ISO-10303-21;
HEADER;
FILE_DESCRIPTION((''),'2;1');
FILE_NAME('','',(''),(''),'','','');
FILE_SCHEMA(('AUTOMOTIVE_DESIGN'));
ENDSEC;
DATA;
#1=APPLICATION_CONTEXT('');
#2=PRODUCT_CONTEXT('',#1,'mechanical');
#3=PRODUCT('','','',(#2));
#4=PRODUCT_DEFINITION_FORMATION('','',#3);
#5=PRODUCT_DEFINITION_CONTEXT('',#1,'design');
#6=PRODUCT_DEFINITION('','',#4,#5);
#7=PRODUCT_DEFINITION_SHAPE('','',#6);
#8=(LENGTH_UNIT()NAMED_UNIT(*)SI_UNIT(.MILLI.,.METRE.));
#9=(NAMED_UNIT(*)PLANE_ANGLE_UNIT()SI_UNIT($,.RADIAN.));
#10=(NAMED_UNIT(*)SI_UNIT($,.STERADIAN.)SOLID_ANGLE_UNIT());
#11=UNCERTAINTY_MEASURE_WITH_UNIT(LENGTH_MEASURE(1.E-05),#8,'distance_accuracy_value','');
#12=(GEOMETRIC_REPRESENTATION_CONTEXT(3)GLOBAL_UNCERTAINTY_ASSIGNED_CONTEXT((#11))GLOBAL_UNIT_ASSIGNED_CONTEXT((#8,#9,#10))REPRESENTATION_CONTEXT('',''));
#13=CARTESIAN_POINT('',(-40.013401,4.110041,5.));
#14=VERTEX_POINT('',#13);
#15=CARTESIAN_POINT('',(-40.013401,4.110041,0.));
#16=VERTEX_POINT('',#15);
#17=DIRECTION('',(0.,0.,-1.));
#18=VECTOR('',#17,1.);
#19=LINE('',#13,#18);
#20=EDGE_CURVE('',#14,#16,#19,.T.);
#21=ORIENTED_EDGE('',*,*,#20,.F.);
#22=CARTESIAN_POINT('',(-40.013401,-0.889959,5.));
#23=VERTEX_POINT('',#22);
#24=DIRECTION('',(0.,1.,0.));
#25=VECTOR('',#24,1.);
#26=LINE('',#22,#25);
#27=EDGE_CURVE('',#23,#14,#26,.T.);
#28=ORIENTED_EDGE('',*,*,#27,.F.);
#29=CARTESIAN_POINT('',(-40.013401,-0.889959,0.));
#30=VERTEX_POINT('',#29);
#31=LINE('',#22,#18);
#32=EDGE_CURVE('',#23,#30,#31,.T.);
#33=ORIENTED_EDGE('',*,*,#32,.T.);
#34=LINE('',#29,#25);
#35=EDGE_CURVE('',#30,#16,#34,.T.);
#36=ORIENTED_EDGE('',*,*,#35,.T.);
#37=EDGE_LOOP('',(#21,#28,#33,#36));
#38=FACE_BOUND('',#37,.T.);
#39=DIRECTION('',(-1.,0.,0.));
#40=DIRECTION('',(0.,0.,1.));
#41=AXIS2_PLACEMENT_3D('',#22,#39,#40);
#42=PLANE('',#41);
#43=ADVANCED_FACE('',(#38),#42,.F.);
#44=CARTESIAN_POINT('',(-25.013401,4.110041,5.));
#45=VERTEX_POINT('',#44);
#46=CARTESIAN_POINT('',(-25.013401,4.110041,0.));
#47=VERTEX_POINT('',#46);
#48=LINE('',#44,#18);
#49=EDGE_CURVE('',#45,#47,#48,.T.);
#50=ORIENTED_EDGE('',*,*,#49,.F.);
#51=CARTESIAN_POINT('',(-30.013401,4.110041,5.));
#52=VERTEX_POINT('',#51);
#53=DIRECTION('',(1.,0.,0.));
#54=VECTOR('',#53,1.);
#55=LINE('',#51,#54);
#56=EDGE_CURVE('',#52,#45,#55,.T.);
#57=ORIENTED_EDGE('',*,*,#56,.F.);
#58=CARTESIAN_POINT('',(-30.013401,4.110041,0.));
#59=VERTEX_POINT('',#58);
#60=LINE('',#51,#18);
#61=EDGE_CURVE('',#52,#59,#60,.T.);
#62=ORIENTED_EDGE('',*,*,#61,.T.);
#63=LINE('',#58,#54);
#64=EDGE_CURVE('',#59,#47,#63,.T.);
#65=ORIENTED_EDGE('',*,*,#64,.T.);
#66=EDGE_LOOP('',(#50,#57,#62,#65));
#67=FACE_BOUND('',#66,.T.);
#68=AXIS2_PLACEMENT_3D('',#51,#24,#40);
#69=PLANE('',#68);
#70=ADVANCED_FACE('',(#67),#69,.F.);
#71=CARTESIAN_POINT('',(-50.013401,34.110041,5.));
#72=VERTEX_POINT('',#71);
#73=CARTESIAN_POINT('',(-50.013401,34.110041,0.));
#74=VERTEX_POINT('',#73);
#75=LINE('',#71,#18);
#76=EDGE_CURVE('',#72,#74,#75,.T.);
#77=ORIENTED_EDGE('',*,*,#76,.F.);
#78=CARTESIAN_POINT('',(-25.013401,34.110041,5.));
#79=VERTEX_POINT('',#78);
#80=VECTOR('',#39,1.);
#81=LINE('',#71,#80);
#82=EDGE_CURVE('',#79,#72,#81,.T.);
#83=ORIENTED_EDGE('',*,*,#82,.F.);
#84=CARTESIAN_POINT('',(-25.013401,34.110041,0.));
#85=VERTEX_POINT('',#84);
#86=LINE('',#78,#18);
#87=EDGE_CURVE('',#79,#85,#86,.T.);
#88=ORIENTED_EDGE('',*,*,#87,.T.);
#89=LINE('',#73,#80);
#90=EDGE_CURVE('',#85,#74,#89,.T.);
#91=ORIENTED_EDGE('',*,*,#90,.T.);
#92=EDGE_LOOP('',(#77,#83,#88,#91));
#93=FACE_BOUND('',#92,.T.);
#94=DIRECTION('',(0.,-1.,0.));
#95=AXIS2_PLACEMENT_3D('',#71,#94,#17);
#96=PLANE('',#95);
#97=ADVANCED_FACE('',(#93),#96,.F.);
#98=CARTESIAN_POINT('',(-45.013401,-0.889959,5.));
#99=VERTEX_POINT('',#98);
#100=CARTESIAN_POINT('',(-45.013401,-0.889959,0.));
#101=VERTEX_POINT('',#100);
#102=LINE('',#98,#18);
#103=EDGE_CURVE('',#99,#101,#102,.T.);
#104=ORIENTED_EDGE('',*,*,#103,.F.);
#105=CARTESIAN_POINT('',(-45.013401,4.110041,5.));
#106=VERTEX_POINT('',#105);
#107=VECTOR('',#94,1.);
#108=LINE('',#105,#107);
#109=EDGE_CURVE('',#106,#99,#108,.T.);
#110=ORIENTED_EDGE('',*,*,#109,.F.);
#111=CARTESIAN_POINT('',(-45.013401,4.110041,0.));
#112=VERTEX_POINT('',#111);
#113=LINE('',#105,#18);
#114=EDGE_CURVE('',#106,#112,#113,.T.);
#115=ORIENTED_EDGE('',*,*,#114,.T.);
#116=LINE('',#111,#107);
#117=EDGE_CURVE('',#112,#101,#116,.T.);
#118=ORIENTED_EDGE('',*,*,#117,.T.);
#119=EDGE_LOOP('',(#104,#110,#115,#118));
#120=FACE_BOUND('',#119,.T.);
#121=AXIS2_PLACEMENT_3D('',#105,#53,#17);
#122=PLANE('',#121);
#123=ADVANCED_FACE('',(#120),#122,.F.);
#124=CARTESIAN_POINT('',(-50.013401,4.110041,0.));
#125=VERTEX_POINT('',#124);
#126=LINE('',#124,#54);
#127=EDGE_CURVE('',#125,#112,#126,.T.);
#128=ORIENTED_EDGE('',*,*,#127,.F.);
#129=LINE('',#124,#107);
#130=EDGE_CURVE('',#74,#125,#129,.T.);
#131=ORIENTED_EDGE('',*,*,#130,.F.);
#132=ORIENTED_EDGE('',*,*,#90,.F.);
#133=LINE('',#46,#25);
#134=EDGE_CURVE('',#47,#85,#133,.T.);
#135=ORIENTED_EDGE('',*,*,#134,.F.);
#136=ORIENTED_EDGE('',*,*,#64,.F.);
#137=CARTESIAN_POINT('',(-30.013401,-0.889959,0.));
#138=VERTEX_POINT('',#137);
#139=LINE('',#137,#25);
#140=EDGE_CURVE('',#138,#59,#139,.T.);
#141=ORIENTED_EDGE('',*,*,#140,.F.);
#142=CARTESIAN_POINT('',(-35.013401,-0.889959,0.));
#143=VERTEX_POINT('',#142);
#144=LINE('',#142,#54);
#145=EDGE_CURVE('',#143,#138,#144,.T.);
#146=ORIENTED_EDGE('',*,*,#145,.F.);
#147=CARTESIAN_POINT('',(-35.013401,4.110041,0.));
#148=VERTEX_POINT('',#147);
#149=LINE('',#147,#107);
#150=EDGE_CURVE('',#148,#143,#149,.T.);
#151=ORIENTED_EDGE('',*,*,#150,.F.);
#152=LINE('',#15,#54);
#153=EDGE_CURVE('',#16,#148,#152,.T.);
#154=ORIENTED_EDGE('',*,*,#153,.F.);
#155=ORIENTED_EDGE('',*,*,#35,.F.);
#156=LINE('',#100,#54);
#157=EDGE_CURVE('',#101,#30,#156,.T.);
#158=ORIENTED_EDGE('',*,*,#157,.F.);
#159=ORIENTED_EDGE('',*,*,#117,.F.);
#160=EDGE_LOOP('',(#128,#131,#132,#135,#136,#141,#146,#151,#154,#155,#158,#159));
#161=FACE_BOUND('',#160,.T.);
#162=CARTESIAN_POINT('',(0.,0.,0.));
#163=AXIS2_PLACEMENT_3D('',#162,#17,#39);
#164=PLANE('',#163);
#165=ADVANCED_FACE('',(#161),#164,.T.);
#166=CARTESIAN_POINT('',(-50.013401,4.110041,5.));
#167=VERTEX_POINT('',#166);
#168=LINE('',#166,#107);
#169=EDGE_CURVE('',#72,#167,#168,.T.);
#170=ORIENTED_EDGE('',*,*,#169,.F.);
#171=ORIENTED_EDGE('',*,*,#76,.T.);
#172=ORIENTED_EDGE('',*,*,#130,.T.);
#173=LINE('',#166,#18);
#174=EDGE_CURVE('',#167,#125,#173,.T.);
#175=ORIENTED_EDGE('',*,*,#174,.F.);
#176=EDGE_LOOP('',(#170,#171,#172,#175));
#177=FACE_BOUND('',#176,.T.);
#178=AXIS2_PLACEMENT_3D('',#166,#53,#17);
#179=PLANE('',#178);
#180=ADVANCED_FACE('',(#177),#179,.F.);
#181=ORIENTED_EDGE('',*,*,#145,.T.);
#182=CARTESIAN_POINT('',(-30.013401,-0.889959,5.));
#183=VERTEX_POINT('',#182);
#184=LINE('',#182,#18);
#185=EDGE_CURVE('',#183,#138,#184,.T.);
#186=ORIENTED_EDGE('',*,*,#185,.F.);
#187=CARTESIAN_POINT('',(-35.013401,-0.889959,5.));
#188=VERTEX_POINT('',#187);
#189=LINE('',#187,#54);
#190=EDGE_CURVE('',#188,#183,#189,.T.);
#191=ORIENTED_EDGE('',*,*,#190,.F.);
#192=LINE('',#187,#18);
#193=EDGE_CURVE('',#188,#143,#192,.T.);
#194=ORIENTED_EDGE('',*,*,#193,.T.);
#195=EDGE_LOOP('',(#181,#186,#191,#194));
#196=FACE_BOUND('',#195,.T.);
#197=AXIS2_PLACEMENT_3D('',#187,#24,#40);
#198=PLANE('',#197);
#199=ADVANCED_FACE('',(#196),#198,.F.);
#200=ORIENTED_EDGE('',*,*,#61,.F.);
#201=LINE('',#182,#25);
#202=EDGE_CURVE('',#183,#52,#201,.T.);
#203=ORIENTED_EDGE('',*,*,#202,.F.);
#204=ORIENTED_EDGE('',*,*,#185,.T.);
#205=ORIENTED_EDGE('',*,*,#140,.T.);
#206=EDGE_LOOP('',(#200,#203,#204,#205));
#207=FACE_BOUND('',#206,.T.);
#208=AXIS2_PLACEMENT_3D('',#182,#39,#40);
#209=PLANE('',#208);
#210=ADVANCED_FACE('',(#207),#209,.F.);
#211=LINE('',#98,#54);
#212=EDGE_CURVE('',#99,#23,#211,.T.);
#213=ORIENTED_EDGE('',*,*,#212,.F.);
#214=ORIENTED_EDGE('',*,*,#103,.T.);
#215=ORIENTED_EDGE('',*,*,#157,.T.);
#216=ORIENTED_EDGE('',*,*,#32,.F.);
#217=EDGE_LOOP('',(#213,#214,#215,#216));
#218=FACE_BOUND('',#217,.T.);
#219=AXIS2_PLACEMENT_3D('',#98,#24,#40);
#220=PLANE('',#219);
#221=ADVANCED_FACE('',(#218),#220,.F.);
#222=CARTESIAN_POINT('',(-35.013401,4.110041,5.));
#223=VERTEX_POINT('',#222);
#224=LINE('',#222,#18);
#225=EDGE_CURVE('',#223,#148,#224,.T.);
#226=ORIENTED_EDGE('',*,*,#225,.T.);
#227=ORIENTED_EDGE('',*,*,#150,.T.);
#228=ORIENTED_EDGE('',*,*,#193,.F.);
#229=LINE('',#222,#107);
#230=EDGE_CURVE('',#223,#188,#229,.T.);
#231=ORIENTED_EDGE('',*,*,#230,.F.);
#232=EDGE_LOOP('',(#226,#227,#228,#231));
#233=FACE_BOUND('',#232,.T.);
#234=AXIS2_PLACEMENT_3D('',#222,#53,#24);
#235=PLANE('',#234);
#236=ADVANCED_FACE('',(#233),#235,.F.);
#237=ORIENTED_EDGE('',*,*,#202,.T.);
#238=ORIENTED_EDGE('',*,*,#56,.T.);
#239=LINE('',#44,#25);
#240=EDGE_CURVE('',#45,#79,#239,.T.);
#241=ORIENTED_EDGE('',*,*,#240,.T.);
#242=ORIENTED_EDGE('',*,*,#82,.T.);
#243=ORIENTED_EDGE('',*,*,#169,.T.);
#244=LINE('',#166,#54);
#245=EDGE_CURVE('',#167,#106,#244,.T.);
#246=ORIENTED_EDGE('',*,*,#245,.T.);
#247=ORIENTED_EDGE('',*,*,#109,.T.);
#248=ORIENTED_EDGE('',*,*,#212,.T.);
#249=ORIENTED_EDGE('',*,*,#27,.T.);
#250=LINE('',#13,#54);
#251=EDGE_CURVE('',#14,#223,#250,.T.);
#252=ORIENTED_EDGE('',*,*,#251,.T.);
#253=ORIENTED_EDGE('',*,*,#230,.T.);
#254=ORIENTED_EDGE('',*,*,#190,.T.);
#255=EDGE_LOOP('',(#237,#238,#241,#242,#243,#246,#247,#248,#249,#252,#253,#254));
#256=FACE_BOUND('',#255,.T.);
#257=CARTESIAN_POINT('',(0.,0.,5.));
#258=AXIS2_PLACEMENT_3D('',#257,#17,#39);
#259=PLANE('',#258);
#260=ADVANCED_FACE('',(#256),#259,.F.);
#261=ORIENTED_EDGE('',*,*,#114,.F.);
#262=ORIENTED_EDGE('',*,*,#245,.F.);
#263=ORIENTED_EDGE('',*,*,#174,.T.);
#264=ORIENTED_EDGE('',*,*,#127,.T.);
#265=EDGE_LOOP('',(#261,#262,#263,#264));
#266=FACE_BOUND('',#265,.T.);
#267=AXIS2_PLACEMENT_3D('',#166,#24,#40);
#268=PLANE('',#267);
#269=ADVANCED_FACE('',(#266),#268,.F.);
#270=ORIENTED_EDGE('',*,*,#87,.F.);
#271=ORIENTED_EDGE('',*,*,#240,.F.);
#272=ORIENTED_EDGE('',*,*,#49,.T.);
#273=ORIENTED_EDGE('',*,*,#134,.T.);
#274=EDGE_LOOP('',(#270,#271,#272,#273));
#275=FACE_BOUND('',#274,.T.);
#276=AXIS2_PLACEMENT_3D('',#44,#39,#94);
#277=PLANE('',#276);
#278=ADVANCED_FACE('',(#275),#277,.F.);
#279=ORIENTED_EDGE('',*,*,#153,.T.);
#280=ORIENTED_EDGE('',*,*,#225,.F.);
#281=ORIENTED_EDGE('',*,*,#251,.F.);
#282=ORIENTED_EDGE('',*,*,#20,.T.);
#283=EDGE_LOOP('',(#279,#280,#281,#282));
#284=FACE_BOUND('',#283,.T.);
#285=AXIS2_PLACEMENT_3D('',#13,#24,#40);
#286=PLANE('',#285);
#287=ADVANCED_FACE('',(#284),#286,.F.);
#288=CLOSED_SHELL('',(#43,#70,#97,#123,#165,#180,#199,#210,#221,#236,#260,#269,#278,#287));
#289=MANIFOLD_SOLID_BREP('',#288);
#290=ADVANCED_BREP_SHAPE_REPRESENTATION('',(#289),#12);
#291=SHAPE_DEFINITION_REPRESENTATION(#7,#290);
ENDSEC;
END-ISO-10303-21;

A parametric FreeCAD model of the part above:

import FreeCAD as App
import Part
import Sketcher


def add_polygon(sketch, points):
    """Adds a closed chain of lines whose ends are joined by coincident constraints."""
    first, n = sketch.GeometryCount, len(points)
    for a, b in zip(points, points[1:] + points[:1]):
        sketch.addGeometry(Part.LineSegment(App.Vector(*a, 0), App.Vector(*b, 0)), False)
    for i in range(n):
        sketch.addConstraint(Sketcher.Constraint("Coincident", first + i, 2, first + (i + 1) % n, 1))

doc = App.newDocument("Part")
body = doc.addObject("PartDesign::Body", "Body")

# Sketch on XY plane
sketch1 = doc.addObject("Sketcher::SketchObject", "Sketch")
body.addObject(sketch1)
sketch1.AttachmentSupport = (doc.XY_Plane, [""])
sketch1.MapMode = "FlatFace"
add_polygon(sketch1, [(-50, 4.1), (-45, 4.1), (-45, -0.9), (-40, -0.9), (-40, 4.1), (-35, 4.1), (-35, -0.9), (-30, -0.9), (-30, 4.1), (-25, 4.1), (-25, 34.1), (-50, 34.1)])  # lines 0-11
sketch1.addConstraint(Sketcher.Constraint("Horizontal", 0))
sketch1.addConstraint(Sketcher.Constraint("Vertical", 1))
sketch1.addConstraint(Sketcher.Constraint("Horizontal", 2))
sketch1.addConstraint(Sketcher.Constraint("Vertical", 3))
sketch1.addConstraint(Sketcher.Constraint("Horizontal", 4))
sketch1.addConstraint(Sketcher.Constraint("Vertical", 5))
sketch1.addConstraint(Sketcher.Constraint("Horizontal", 6))
sketch1.addConstraint(Sketcher.Constraint("Vertical", 7))
sketch1.addConstraint(Sketcher.Constraint("Horizontal", 8))
sketch1.addConstraint(Sketcher.Constraint("Vertical", 9))
sketch1.addConstraint(Sketcher.Constraint("Horizontal", 10))
sketch1.addConstraint(Sketcher.Constraint("Vertical", 11))
sketch1.addConstraint(Sketcher.Constraint("Horizontal", 0, 2, 3, 2))
sketch1.addConstraint(Sketcher.Constraint("Horizontal", 2, 2, 5, 2))
sketch1.addConstraint(Sketcher.Constraint("Horizontal", 4, 2, 7, 2))
sketch1.addConstraint(Sketcher.Constraint("Equal", 0, 2))
sketch1.addConstraint(Sketcher.Constraint("Equal", 2, 4))
sketch1.addConstraint(Sketcher.Constraint("Equal", 4, 6))
sketch1.addConstraint(Sketcher.Constraint("Equal", 6, 8))
sketch1.addConstraint(Sketcher.Constraint("Equal", 8, 1))
sketch1.addConstraint(Sketcher.Constraint("DistanceX", 0, 1, 0, 2, 5.0))
sketch1.addConstraint(Sketcher.Constraint("DistanceY", 9, 1, 9, 2, 30.0))
sketch1.addConstraint(Sketcher.Constraint("DistanceX", 0, 2, -1, 1, 45.013401))
sketch1.addConstraint(Sketcher.Constraint("DistanceY", -1, 1, 0, 2, 4.110041))
pad1 = doc.addObject("PartDesign::Pad", "Pad")
body.addObject(pad1)
pad1.Profile = sketch1
pad1.Length = 5

doc.recompute()
